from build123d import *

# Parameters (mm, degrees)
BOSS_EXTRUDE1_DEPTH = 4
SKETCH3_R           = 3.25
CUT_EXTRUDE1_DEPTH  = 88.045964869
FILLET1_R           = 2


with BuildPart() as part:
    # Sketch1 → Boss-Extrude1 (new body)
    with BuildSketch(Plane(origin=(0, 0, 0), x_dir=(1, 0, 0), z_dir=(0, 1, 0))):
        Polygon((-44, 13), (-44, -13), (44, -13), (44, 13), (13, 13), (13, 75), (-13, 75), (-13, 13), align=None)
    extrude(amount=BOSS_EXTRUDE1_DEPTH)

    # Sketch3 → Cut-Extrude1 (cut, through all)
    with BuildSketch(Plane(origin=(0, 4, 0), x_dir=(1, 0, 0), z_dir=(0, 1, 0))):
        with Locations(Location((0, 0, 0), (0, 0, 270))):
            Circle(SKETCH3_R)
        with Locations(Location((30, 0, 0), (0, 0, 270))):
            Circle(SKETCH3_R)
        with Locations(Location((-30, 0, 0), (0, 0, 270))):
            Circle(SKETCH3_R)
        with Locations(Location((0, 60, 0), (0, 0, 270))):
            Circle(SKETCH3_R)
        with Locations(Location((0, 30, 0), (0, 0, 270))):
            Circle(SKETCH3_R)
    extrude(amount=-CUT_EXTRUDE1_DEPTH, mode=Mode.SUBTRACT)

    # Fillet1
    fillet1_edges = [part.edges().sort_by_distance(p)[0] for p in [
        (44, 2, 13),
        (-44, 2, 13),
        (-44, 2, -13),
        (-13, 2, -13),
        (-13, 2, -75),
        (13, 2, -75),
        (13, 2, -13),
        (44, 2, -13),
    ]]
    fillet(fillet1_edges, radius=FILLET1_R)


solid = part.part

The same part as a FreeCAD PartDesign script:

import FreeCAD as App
import Part
import Sketcher
from FreeCAD import Vector


def edges_at(feature, points):
    """Names of the edges that pass closest to the given points."""
    edges = feature.Shape.Edges
    near = lambda p: min(range(len(edges)), key=lambda i: edges[i].distToShape(Part.Vertex(*p))[0])
    return sorted({f"Edge{near(p) + 1}" for p in points})

doc = App.newDocument("Part")
body = doc.addObject("PartDesign::Body", "Body")

# Sketch on XZ plane
sketch1 = body.newObject("Sketcher::SketchObject", "Sketch")
sketch1.AttachmentSupport = (doc.getObject("XZ_Plane"), [""])
sketch1.MapMode = "FlatFace"
sketch1.addGeometry([
    Part.LineSegment(Vector(-44, -13, 0), Vector(-44, 13, 0)),  # 0
    Part.LineSegment(Vector(-44, 13, 0), Vector(44, 13, 0)),  # 1
    Part.LineSegment(Vector(44, 13, 0), Vector(44, -13, 0)),  # 2
    Part.LineSegment(Vector(44, -13, 0), Vector(13, -13, 0)),  # 3
    Part.LineSegment(Vector(13, -13, 0), Vector(13, -75, 0)),  # 4
    Part.LineSegment(Vector(13, -75, 0), Vector(-13, -75, 0)),  # 5
    Part.LineSegment(Vector(-13, -75, 0), Vector(-13, -13, 0)),  # 6
    Part.LineSegment(Vector(-13, -13, 0), Vector(-44, -13, 0)),  # 7
], False)
sketch1.addConstraint([
    Sketcher.Constraint("Coincident", 0, 2, 1, 1),
    Sketcher.Constraint("Coincident", 1, 2, 2, 1),
    Sketcher.Constraint("Coincident", 2, 2, 3, 1),
    Sketcher.Constraint("Coincident", 3, 2, 4, 1),
    Sketcher.Constraint("Coincident", 4, 2, 5, 1),
    Sketcher.Constraint("Coincident", 5, 2, 6, 1),
    Sketcher.Constraint("Coincident", 6, 2, 7, 1),
    Sketcher.Constraint("Coincident", 7, 2, 0, 1),
    Sketcher.Constraint("Vertical", 0),
    Sketcher.Constraint("Horizontal", 1),
    Sketcher.Constraint("Vertical", 2),
    Sketcher.Constraint("Horizontal", 3),
    Sketcher.Constraint("Vertical", 4),
    Sketcher.Constraint("Horizontal", 5),
    Sketcher.Constraint("Vertical", 6),
    Sketcher.Constraint("Horizontal", 7),
    Sketcher.Constraint("Symmetric", 0, 2, 2, 2, -1, 1),
    Sketcher.Constraint("Symmetric", 3, 2, 6, 2, -2),
    Sketcher.Constraint("Equal", 5, 0),
    Sketcher.Constraint("DistanceX", 1, 1, 1, 2, 88.0),
    Sketcher.Constraint("DistanceX", 3, 2, 3, 1, 31.0),
    Sketcher.Constraint("DistanceY", 4, 2, 4, 1, 62.0),
])
pad1 = body.newObject("PartDesign::Pad", "Pad")
pad1.Profile = sketch1
pad1.Length = 4
pad1.Reversed = True

# Sketch on XZ plane
sketch2 = body.newObject("Sketcher::SketchObject", "Sketch001")
sketch2.AttachmentSupport = (doc.getObject("XZ_Plane"), [""])
sketch2.MapMode = "FlatFace"
sketch2.AttachmentOffset = App.Placement(Vector(0, 0, -4), App.Rotation())
sketch2.addGeometry([
    Part.Circle(Vector(0, 0, 0), Vector(0, 0, 1), 3.2),  # 0
    Part.Circle(Vector(30, 0, 0), Vector(0, 0, 1), 3.2),  # 1
    Part.Circle(Vector(-30, 0, 0), Vector(0, 0, 1), 3.2),  # 2
    Part.Circle(Vector(0, -60, 0), Vector(0, 0, 1), 3.2),  # 3
    Part.Circle(Vector(0, -30, 0), Vector(0, 0, 1), 3.2),  # 4
], False)
sketch2.addConstraint([
    Sketcher.Constraint("Coincident", 0, 3, -1, 1),
    Sketcher.Constraint("Equal", 0, 1),
    Sketcher.Constraint("Equal", 1, 2),
    Sketcher.Constraint("Equal", 2, 3),
    Sketcher.Constraint("Equal", 3, 4),
    Sketcher.Constraint("Symmetric", 1, 3, 2, 3, -1, 1),
    Sketcher.Constraint("PointOnObject", 1, 3, -1),
    Sketcher.Constraint("PointOnObject", 3, 3, -2),
    Sketcher.Constraint("PointOnObject", 4, 3, -2),
    Sketcher.Constraint("Diameter", 0, 6.5),
    Sketcher.Constraint("DistanceX", -1, 1, 1, 3, 30.0),
    Sketcher.Constraint("DistanceY", 3, 3, -1, 1, 60.0),
    Sketcher.Constraint("DistanceY", 4, 3, -1, 1, 30.0),
])
pocket1 = body.newObject("PartDesign::Pocket", "Pocket")
pocket1.Profile = sketch2
pocket1.Type = "ThroughAll"
pocket1.Reversed = True
doc.recompute()

fillet = body.newObject("PartDesign::Fillet", "Fillet")
fillet.Base = (pocket1, edges_at(pocket1, [
    (44, 2, 13),
    (-44, 2, 13),
    (-44, 2, -13),
    (-13, 2, -13),
    (-13, 2, -75),
    (13, 2, -75),
    (13, 2, -13),
    (44, 2, -13),
]))
fillet.Radius = 2

doc.recompute()
